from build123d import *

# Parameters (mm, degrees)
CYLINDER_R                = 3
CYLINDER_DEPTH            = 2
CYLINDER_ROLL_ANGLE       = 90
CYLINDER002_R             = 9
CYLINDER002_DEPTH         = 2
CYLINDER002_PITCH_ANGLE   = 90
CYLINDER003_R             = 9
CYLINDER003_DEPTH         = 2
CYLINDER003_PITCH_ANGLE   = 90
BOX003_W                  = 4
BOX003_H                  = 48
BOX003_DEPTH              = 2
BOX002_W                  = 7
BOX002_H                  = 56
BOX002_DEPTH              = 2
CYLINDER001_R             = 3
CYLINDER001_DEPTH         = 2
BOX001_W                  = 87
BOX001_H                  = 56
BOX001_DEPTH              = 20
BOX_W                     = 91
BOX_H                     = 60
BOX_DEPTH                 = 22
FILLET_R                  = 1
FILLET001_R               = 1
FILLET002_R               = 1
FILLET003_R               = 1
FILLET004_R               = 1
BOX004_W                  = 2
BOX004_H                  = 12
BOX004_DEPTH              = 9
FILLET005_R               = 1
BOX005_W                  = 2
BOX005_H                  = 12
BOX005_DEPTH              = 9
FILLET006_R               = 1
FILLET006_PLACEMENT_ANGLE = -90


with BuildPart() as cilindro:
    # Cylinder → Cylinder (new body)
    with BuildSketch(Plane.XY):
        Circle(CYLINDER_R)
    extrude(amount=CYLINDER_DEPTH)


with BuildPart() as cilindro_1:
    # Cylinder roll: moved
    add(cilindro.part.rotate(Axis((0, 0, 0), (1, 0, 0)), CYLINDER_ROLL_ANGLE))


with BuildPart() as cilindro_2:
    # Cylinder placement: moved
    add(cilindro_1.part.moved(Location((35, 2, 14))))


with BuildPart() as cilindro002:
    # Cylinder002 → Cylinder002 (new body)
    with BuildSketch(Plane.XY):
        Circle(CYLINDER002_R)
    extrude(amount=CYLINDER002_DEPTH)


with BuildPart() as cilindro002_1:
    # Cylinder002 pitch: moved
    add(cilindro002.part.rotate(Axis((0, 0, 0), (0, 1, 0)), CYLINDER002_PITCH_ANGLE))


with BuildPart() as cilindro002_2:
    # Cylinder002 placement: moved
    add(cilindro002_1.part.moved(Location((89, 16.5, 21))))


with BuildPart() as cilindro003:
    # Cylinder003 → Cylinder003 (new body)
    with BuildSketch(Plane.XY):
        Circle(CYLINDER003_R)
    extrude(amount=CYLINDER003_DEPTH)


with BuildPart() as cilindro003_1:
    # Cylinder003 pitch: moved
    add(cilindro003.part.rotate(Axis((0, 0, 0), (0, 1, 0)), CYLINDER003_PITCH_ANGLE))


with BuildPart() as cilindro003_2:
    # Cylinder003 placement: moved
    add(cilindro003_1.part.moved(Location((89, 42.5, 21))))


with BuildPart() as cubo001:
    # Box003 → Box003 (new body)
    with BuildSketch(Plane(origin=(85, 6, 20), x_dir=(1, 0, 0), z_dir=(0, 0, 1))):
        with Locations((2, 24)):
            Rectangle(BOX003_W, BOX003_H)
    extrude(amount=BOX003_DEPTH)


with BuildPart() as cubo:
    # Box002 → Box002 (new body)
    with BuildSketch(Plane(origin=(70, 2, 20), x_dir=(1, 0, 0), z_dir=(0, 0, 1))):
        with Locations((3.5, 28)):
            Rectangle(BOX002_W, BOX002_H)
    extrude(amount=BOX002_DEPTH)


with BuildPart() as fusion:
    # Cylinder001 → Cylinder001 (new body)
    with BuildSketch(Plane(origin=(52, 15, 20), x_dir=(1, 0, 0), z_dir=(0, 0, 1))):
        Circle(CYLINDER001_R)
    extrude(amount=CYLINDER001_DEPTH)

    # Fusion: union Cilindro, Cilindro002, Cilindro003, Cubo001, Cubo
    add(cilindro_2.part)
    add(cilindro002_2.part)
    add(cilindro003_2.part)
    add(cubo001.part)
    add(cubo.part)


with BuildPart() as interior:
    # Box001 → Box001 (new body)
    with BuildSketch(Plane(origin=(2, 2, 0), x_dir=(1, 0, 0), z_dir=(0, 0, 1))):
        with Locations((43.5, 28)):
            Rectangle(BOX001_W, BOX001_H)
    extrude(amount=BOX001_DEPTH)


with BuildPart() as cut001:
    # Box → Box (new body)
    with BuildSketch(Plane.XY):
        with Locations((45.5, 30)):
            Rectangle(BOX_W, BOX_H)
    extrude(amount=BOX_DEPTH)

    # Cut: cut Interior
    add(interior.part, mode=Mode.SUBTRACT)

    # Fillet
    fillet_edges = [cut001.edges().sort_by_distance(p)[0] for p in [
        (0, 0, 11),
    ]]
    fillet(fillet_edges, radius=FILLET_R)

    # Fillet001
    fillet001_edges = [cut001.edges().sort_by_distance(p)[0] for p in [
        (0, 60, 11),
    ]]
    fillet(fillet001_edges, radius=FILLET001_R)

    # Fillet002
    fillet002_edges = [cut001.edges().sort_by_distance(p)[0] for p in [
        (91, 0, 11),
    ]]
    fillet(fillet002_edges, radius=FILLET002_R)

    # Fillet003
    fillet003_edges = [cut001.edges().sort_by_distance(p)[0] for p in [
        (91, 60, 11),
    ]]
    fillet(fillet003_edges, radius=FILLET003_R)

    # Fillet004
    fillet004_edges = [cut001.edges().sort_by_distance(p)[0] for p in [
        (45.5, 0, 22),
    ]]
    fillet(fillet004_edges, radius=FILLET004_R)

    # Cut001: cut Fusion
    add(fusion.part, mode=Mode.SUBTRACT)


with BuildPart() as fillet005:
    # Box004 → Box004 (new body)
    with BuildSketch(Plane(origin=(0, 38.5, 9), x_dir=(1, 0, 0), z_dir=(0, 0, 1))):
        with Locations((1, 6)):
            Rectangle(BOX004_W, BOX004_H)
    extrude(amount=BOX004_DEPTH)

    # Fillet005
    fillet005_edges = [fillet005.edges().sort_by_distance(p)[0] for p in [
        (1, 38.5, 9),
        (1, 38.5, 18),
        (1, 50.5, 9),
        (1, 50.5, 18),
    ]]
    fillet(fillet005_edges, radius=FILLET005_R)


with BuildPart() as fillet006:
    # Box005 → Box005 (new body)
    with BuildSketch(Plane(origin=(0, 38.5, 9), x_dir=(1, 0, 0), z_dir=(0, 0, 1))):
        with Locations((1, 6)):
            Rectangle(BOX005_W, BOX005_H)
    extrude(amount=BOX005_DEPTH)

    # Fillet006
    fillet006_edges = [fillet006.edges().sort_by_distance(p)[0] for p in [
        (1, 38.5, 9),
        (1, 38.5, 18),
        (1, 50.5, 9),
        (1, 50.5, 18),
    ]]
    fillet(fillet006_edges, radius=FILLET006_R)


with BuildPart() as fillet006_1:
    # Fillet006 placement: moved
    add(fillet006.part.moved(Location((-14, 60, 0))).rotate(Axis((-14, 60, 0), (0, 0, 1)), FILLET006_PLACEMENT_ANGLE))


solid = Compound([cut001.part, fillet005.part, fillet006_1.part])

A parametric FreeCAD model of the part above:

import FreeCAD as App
import Part
import Sketcher

V = App.Vector
Q = App.Units.Quantity


def edges_at(feature, points):
    """Names of the edges that pass closest to the given points."""
    edges = feature.Shape.Edges
    near = lambda p: min(range(len(edges)), key=lambda i: edges[i].distToShape(Part.Vertex(*p))[0])
    return sorted({f"Edge{near(p) + 1}" for p in points})

doc = App.newDocument("Part")
body = doc.addObject("PartDesign::Body", "Body")

sketch1 = body.newObject("Sketcher::SketchObject", "Sketch")
sketch1.AttachmentSupport = (doc.getObject("XY_Plane"), [""])
sketch1.MapMode = "FlatFace"
sketch1.addGeometry(Part.Circle(V(0, 0, 0), V(0, 0, 1), 3), False)
sketch1.addConstraint(Sketcher.Constraint("Coincident", 0, 3, -1, 1))
sketch1.addConstraint(Sketcher.Constraint("Diameter", 0, Q("6 mm")))
pad1 = body.newObject("PartDesign::Pad", "Pad")
pad1.Profile = sketch1
pad1.Length = 2
body2 = doc.addObject("PartDesign::Body", "Body001")
doc.recompute()

body.Placement = App.Placement(V(0, 0, 0), App.Rotation(V(1, 0, 0), 90))
boolean = body2.newObject("PartDesign::Boolean", "Boolean")
boolean.Type = "Fuse"
boolean.addObjects([body])
body3 = doc.addObject("PartDesign::Body", "Body002")
doc.recompute()

body2.Placement = App.Placement(V(35, 2, 14), App.Rotation(V(0, 0, 1), 0))
boolean2 = body3.newObject("PartDesign::Boolean", "Boolean001")
boolean2.Type = "Fuse"
boolean2.addObjects([body2])
body4 = doc.addObject("PartDesign::Body", "Body003")

sketch2 = body4.newObject("Sketcher::SketchObject", "Sketch001")
sketch2.AttachmentSupport = (doc.getObject("XY_Plane003"), [""])
sketch2.MapMode = "FlatFace"
sketch2.addGeometry(Part.Circle(V(0, 0, 0), V(0, 0, 1), 9), False)
sketch2.addConstraint(Sketcher.Constraint("Coincident", 0, 3, -1, 1))
sketch2.addConstraint(Sketcher.Constraint("Diameter", 0, Q("18 mm")))
pad2 = body4.newObject("PartDesign::Pad", "Pad001")
pad2.Profile = sketch2
pad2.Length = 2
body5 = doc.addObject("PartDesign::Body", "Body004")
doc.recompute()

body4.Placement = App.Placement(V(0, 0, 0), App.Rotation(V(0, 1, 0), 90))
boolean3 = body5.newObject("PartDesign::Boolean", "Boolean002")
boolean3.Type = "Fuse"
boolean3.addObjects([body4])
body6 = doc.addObject("PartDesign::Body", "Body005")
doc.recompute()

body5.Placement = App.Placement(V(89, 16.5, 21), App.Rotation(V(0, 0, 1), 0))
boolean4 = body6.newObject("PartDesign::Boolean", "Boolean003")
boolean4.Type = "Fuse"
boolean4.addObjects([body5])
body7 = doc.addObject("PartDesign::Body", "Body006")

sketch3 = body7.newObject("Sketcher::SketchObject", "Sketch002")
sketch3.AttachmentSupport = (doc.getObject("XY_Plane006"), [""])
sketch3.MapMode = "FlatFace"
sketch3.addGeometry(Part.Circle(V(0, 0, 0), V(0, 0, 1), 9), False)
sketch3.addConstraint(Sketcher.Constraint("Coincident", 0, 3, -1, 1))
sketch3.addConstraint(Sketcher.Constraint("Diameter", 0, Q("18 mm")))
pad3 = body7.newObject("PartDesign::Pad", "Pad002")
pad3.Profile = sketch3
pad3.Length = 2
body8 = doc.addObject("PartDesign::Body", "Body007")
doc.recompute()

body7.Placement = App.Placement(V(0, 0, 0), App.Rotation(V(0, 1, 0), 90))
boolean5 = body8.newObject("PartDesign::Boolean", "Boolean004")
boolean5.Type = "Fuse"
boolean5.addObjects([body7])
body9 = doc.addObject("PartDesign::Body", "Body008")
doc.recompute()

body8.Placement = App.Placement(V(89, 42.5, 21), App.Rotation(V(0, 0, 1), 0))
boolean6 = body9.newObject("PartDesign::Boolean", "Boolean005")
boolean6.Type = "Fuse"
boolean6.addObjects([body8])
body10 = doc.addObject("PartDesign::Body", "Body009")

sketch4 = body10.newObject("Sketcher::SketchObject", "Sketch003")
sketch4.AttachmentSupport = (doc.getObject("XY_Plane009"), [""])
sketch4.MapMode = "FlatFace"
sketch4.AttachmentOffset = App.Placement(V(0, 0, 20), App.Rotation())
sketch4.addGeometry(Part.LineSegment(V(85, 54, 0), V(85, 6, 0)), False)
sketch4.addGeometry(Part.LineSegment(V(85, 6, 0), V(89, 6, 0)), False)
sketch4.addGeometry(Part.LineSegment(V(89, 6, 0), V(89, 54, 0)), False)
sketch4.addGeometry(Part.LineSegment(V(89, 54, 0), V(85, 54, 0)), False)
sketch4.addConstraint(Sketcher.Constraint("Coincident", 0, 2, 1, 1))
sketch4.addConstraint(Sketcher.Constraint("Coincident", 1, 2, 2, 1))
sketch4.addConstraint(Sketcher.Constraint("Coincident", 2, 2, 3, 1))
sketch4.addConstraint(Sketcher.Constraint("Coincident", 3, 2, 0, 1))
sketch4.addConstraint(Sketcher.Constraint("Vertical", 0))
sketch4.addConstraint(Sketcher.Constraint("Horizontal", 1))
sketch4.addConstraint(Sketcher.Constraint("Vertical", 2))
sketch4.addConstraint(Sketcher.Constraint("Horizontal", 3))
sketch4.addConstraint(Sketcher.Constraint("DistanceX", 1, 1, 1, 2, Q("4 mm")))
sketch4.addConstraint(Sketcher.Constraint("DistanceY", 0, 2, 0, 1, Q("48 mm")))
sketch4.addConstraint(Sketcher.Constraint("DistanceX", -1, 1, 0, 2, Q("85 mm")))
sketch4.addConstraint(Sketcher.Constraint("DistanceY", -1, 1, 0, 2, Q("6 mm")))
pad4 = body10.newObject("PartDesign::Pad", "Pad003")
pad4.Profile = sketch4
pad4.Length = 2
body11 = doc.addObject("PartDesign::Body", "Body010")

sketch5 = body11.newObject("Sketcher::SketchObject", "Sketch004")
sketch5.AttachmentSupport = (doc.getObject("XY_Plane010"), [""])
sketch5.MapMode = "FlatFace"
sketch5.AttachmentOffset = App.Placement(V(0, 0, 20), App.Rotation())
sketch5.addGeometry(Part.LineSegment(V(70, 58, 0), V(70, 2, 0)), False)
sketch5.addGeometry(Part.LineSegment(V(70, 2, 0), V(77, 2, 0)), False)
sketch5.addGeometry(Part.LineSegment(V(77, 2, 0), V(77, 58, 0)), False)
sketch5.addGeometry(Part.LineSegment(V(77, 58, 0), V(70, 58, 0)), False)
sketch5.addConstraint(Sketcher.Constraint("Coincident", 0, 2, 1, 1))
sketch5.addConstraint(Sketcher.Constraint("Coincident", 1, 2, 2, 1))
sketch5.addConstraint(Sketcher.Constraint("Coincident", 2, 2, 3, 1))
sketch5.addConstraint(Sketcher.Constraint("Coincident", 3, 2, 0, 1))
sketch5.addConstraint(Sketcher.Constraint("Vertical", 0))
sketch5.addConstraint(Sketcher.Constraint("Horizontal", 1))
sketch5.addConstraint(Sketcher.Constraint("Vertical", 2))
sketch5.addConstraint(Sketcher.Constraint("Horizontal", 3))
sketch5.addConstraint(Sketcher.Constraint("DistanceX", 1, 1, 1, 2, Q("7 mm")))
sketch5.addConstraint(Sketcher.Constraint("DistanceY", 0, 2, 0, 1, Q("56 mm")))
sketch5.addConstraint(Sketcher.Constraint("DistanceX", -1, 1, 0, 2, Q("70 mm")))
sketch5.addConstraint(Sketcher.Constraint("DistanceY", -1, 1, 0, 2, Q("2 mm")))
pad5 = body11.newObject("PartDesign::Pad", "Pad004")
pad5.Profile = sketch5
pad5.Length = 2
body12 = doc.addObject("PartDesign::Body", "Body011")
body12.AllowCompound = True

sketch6 = body12.newObject("Sketcher::SketchObject", "Sketch005")
sketch6.AttachmentSupport = (doc.getObject("XY_Plane011"), [""])
sketch6.MapMode = "FlatFace"
sketch6.AttachmentOffset = App.Placement(V(0, 0, 20), App.Rotation())
sketch6.addGeometry(Part.Circle(V(52, 15, 0), V(0, 0, 1), 3), False)
sketch6.addConstraint(Sketcher.Constraint("Diameter", 0, Q("6 mm")))
sketch6.addConstraint(Sketcher.Constraint("DistanceX", -1, 1, 0, 3, Q("52 mm")))
sketch6.addConstraint(Sketcher.Constraint("DistanceY", -1, 1, 0, 3, Q("15 mm")))
pad6 = body12.newObject("PartDesign::Pad", "Pad005")
pad6.Profile = sketch6
pad6.Length = 2
doc.recompute()

boolean7 = body12.newObject("PartDesign::Boolean", "Boolean006")
boolean7.Type = "Fuse"
boolean7.addObjects([body3])
doc.recompute()

boolean8 = body12.newObject("PartDesign::Boolean", "Boolean007")
boolean8.Type = "Fuse"
boolean8.addObjects([body6])
doc.recompute()

boolean9 = body12.newObject("PartDesign::Boolean", "Boolean008")
boolean9.Type = "Fuse"
boolean9.addObjects([body9])
doc.recompute()

boolean10 = body12.newObject("PartDesign::Boolean", "Boolean009")
boolean10.Type = "Fuse"
boolean10.addObjects([body10])
doc.recompute()

boolean11 = body12.newObject("PartDesign::Boolean", "Boolean010")
boolean11.Type = "Fuse"
boolean11.addObjects([body11])
body13 = doc.addObject("PartDesign::Body", "Body012")

sketch7 = body13.newObject("Sketcher::SketchObject", "Sketch006")
sketch7.AttachmentSupport = (doc.getObject("XY_Plane012"), [""])
sketch7.MapMode = "FlatFace"
sketch7.addGeometry(Part.LineSegment(V(2, 58, 0), V(2, 2, 0)), False)
sketch7.addGeometry(Part.LineSegment(V(2, 2, 0), V(89, 2, 0)), False)
sketch7.addGeometry(Part.LineSegment(V(89, 2, 0), V(89, 58, 0)), False)
sketch7.addGeometry(Part.LineSegment(V(89, 58, 0), V(2, 58, 0)), False)
sketch7.addConstraint(Sketcher.Constraint("Coincident", 0, 2, 1, 1))
sketch7.addConstraint(Sketcher.Constraint("Coincident", 1, 2, 2, 1))
sketch7.addConstraint(Sketcher.Constraint("Coincident", 2, 2, 3, 1))
sketch7.addConstraint(Sketcher.Constraint("Coincident", 3, 2, 0, 1))
sketch7.addConstraint(Sketcher.Constraint("Vertical", 0))
sketch7.addConstraint(Sketcher.Constraint("Horizontal", 1))
sketch7.addConstraint(Sketcher.Constraint("Vertical", 2))
sketch7.addConstraint(Sketcher.Constraint("Horizontal", 3))
sketch7.addConstraint(Sketcher.Constraint("DistanceX", 1, 1, 1, 2, Q("87 mm")))
sketch7.addConstraint(Sketcher.Constraint("DistanceY", 0, 2, 0, 1, Q("56 mm")))
sketch7.addConstraint(Sketcher.Constraint("DistanceX", -1, 1, 0, 2, Q("2 mm")))
sketch7.addConstraint(Sketcher.Constraint("DistanceY", -1, 1, 0, 2, Q("2 mm")))
pad7 = body13.newObject("PartDesign::Pad", "Pad006")
pad7.Profile = sketch7
pad7.Length = 20
body14 = doc.addObject("PartDesign::Body", "Body013")

sketch8 = body14.newObject("Sketcher::SketchObject", "Sketch007")
sketch8.AttachmentSupport = (doc.getObject("XY_Plane013"), [""])
sketch8.MapMode = "FlatFace"
sketch8.addGeometry(Part.LineSegment(V(0, 60, 0), V(0, 0, 0)), False)
sketch8.addGeometry(Part.LineSegment(V(0, 0, 0), V(91, 0, 0)), False)
sketch8.addGeometry(Part.LineSegment(V(91, 0, 0), V(91, 60, 0)), False)
sketch8.addGeometry(Part.LineSegment(V(91, 60, 0), V(0, 60, 0)), False)
sketch8.addConstraint(Sketcher.Constraint("Coincident", 0, 2, 1, 1))
sketch8.addConstraint(Sketcher.Constraint("Coincident", 1, 2, 2, 1))
sketch8.addConstraint(Sketcher.Constraint("Coincident", 2, 2, 3, 1))
sketch8.addConstraint(Sketcher.Constraint("Coincident", 3, 2, 0, 1))
sketch8.addConstraint(Sketcher.Constraint("Vertical", 0))
sketch8.addConstraint(Sketcher.Constraint("Horizontal", 1))
sketch8.addConstraint(Sketcher.Constraint("Vertical", 2))
sketch8.addConstraint(Sketcher.Constraint("Horizontal", 3))
sketch8.addConstraint(Sketcher.Constraint("Coincident", 0, 2, -1, 1))
sketch8.addConstraint(Sketcher.Constraint("DistanceX", 1, 1, 1, 2, Q("91 mm")))
sketch8.addConstraint(Sketcher.Constraint("DistanceY", 0, 2, 0, 1, Q("60 mm")))
pad8 = body14.newObject("PartDesign::Pad", "Pad007")
pad8.Profile = sketch8
pad8.Length = 22
doc.recompute()

boolean12 = body14.newObject("PartDesign::Boolean", "Boolean011")
boolean12.Type = "Cut"
boolean12.addObjects([body13])
doc.recompute()

fillet = body14.newObject("PartDesign::Fillet", "Fillet")
fillet.Base = (boolean12, edges_at(boolean12, [(0, 0, 11)]))
fillet.Radius = 1
doc.recompute()

fillet2 = body14.newObject("PartDesign::Fillet", "Fillet001")
fillet2.Base = (fillet, edges_at(fillet, [(0, 60, 11)]))
fillet2.Radius = 1
doc.recompute()

fillet3 = body14.newObject("PartDesign::Fillet", "Fillet002")
fillet3.Base = (fillet2, edges_at(fillet2, [(91, 0, 11)]))
fillet3.Radius = 1
doc.recompute()

fillet4 = body14.newObject("PartDesign::Fillet", "Fillet003")
fillet4.Base = (fillet3, edges_at(fillet3, [(91, 60, 11)]))
fillet4.Radius = 1
doc.recompute()

fillet5 = body14.newObject("PartDesign::Fillet", "Fillet004")
fillet5.Base = (fillet4, edges_at(fillet4, [(45.5, 0, 22)]))
fillet5.Radius = 1
doc.recompute()

boolean13 = body14.newObject("PartDesign::Boolean", "Boolean012")
boolean13.Type = "Cut"
boolean13.addObjects([body12])
body15 = doc.addObject("PartDesign::Body", "Body014")

sketch9 = body15.newObject("Sketcher::SketchObject", "Sketch008")
sketch9.AttachmentSupport = (doc.getObject("XY_Plane014"), [""])
sketch9.MapMode = "FlatFace"
sketch9.AttachmentOffset = App.Placement(V(0, 0, 9), App.Rotation())
sketch9.addGeometry(Part.LineSegment(V(0, 50.5, 0), V(0, 38.5, 0)), False)
sketch9.addGeometry(Part.LineSegment(V(0, 38.5, 0), V(2, 38.5, 0)), False)
sketch9.addGeometry(Part.LineSegment(V(2, 38.5, 0), V(2, 50.5, 0)), False)
sketch9.addGeometry(Part.LineSegment(V(2, 50.5, 0), V(0, 50.5, 0)), False)
sketch9.addConstraint(Sketcher.Constraint("Coincident", 0, 2, 1, 1))
sketch9.addConstraint(Sketcher.Constraint("Coincident", 1, 2, 2, 1))
sketch9.addConstraint(Sketcher.Constraint("Coincident", 2, 2, 3, 1))
sketch9.addConstraint(Sketcher.Constraint("Coincident", 3, 2, 0, 1))
sketch9.addConstraint(Sketcher.Constraint("Vertical", 0))
sketch9.addConstraint(Sketcher.Constraint("Horizontal", 1))
sketch9.addConstraint(Sketcher.Constraint("Vertical", 2))
sketch9.addConstraint(Sketcher.Constraint("Horizontal", 3))
sketch9.addConstraint(Sketcher.Constraint("PointOnObject", 0, 2, -2))
sketch9.addConstraint(Sketcher.Constraint("DistanceX", 1, 1, 1, 2, Q("2 mm")))
sketch9.addConstraint(Sketcher.Constraint("DistanceY", 0, 2, 0, 1, Q("12 mm")))
sketch9.addConstraint(Sketcher.Constraint("DistanceY", -1, 1, 0, 2, Q("38.5 mm")))
pad9 = body15.newObject("PartDesign::Pad", "Pad008")
pad9.Profile = sketch9
pad9.Length = 9
doc.recompute()

fillet6 = body15.newObject("PartDesign::Fillet", "Fillet005")
fillet6.Base = (pad9, edges_at(pad9, [
    (1, 38.5, 9),
    (1, 38.5, 18),
    (1, 50.5, 9),
    (1, 50.5, 18),
]))
fillet6.Radius = 1
body16 = doc.addObject("PartDesign::Body", "Body015")

sketch10 = body16.newObject("Sketcher::SketchObject", "Sketch009")
sketch10.AttachmentSupport = (doc.getObject("XY_Plane015"), [""])
sketch10.MapMode = "FlatFace"
sketch10.AttachmentOffset = App.Placement(V(0, 0, 9), App.Rotation())
sketch10.addGeometry(Part.LineSegment(V(0, 50.5, 0), V(0, 38.5, 0)), False)
sketch10.addGeometry(Part.LineSegment(V(0, 38.5, 0), V(2, 38.5, 0)), False)
sketch10.addGeometry(Part.LineSegment(V(2, 38.5, 0), V(2, 50.5, 0)), False)
sketch10.addGeometry(Part.LineSegment(V(2, 50.5, 0), V(0, 50.5, 0)), False)
sketch10.addConstraint(Sketcher.Constraint("Coincident", 0, 2, 1, 1))
sketch10.addConstraint(Sketcher.Constraint("Coincident", 1, 2, 2, 1))
sketch10.addConstraint(Sketcher.Constraint("Coincident", 2, 2, 3, 1))
sketch10.addConstraint(Sketcher.Constraint("Coincident", 3, 2, 0, 1))
sketch10.addConstraint(Sketcher.Constraint("Vertical", 0))
sketch10.addConstraint(Sketcher.Constraint("Horizontal", 1))
sketch10.addConstraint(Sketcher.Constraint("Vertical", 2))
sketch10.addConstraint(Sketcher.Constraint("Horizontal", 3))
sketch10.addConstraint(Sketcher.Constraint("PointOnObject", 0, 2, -2))
sketch10.addConstraint(Sketcher.Constraint("DistanceX", 1, 1, 1, 2, Q("2 mm")))
sketch10.addConstraint(Sketcher.Constraint("DistanceY", 0, 2, 0, 1, Q("12 mm")))
sketch10.addConstraint(Sketcher.Constraint("DistanceY", -1, 1, 0, 2, Q("38.5 mm")))
pad10 = body16.newObject("PartDesign::Pad", "Pad009")
pad10.Profile = sketch10
pad10.Length = 9
doc.recompute()

fillet7 = body16.newObject("PartDesign::Fillet", "Fillet006")
fillet7.Base = (pad10, edges_at(pad10, [
    (1, 38.5, 9),
    (1, 38.5, 18),
    (1, 50.5, 9),
    (1, 50.5, 18),
]))
fillet7.Radius = 1
body17 = doc.addObject("PartDesign::Body", "Body016")
doc.recompute()

body16.Placement = App.Placement(V(-14, 60, 0), App.Rotation(V(0, 0, 1), 270))
boolean14 = body17.newObject("PartDesign::Boolean", "Boolean013")
boolean14.Type = "Fuse"
boolean14.addObjects([body16])

doc.recompute()
